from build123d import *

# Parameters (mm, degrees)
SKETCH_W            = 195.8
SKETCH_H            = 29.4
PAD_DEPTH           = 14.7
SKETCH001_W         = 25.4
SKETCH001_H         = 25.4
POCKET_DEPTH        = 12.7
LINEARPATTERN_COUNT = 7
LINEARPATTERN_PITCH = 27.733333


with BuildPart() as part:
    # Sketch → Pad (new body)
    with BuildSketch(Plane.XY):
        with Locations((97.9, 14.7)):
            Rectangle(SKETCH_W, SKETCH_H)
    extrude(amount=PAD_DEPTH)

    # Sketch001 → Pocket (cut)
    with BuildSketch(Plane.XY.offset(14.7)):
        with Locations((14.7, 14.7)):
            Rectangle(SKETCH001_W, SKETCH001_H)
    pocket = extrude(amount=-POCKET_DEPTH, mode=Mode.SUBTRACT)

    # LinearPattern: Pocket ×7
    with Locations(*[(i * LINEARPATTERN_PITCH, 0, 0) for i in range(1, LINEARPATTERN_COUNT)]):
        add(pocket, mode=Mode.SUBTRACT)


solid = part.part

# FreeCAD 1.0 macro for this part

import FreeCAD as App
import Part
import Sketcher

V = App.Vector
Q = App.Units.Quantity


def add_polygon(sketch, points):
    """Adds a closed chain of lines whose ends are joined by coincident constraints."""
    first, n = sketch.GeometryCount, len(points)
    for a, b in zip(points, points[1:] + points[:1]):
        sketch.addGeometry(Part.LineSegment(App.Vector(*a, 0), App.Vector(*b, 0)), False)
    for i in range(n):
        sketch.addConstraint(Sketcher.Constraint("Coincident", first + i, 2, first + (i + 1) % n, 1))

doc = App.newDocument("Part")
params = doc.addObject("Spreadsheet::Sheet", "Params")
for row, (alias, value) in enumerate([
    ("sketch1_width", "195.8 mm"),
    ("sketch1_height", "29.4 mm"),
    ("pad1_length", "14.7 mm"),
    ("sketch2_width", "25.4 mm"),
    ("pocket1_length", "12.7 mm"),
    ("linearpattern_pitch", "27.733333 mm"),
], start=1):
    params.set(f"A{row}", alias)
    params.set(f"B{row}", "=" + value)
    params.setAlias(f"B{row}", alias)

body = doc.addObject("PartDesign::Body", "Body")

sketch1 = body.newObject("Sketcher::SketchObject", "Sketch")
sketch1.AttachmentSupport = (doc.getObject("XY_Plane"), [""])
sketch1.MapMode = "FlatFace"
add_polygon(sketch1, [(0, 29), (0, 0), (196, 0), (196, 29)])
sketch1.addConstraint([
    Sketcher.Constraint("Vertical", 0),
    Sketcher.Constraint("Horizontal", 1),
    Sketcher.Constraint("Vertical", 2),
    Sketcher.Constraint("Horizontal", 3),
    Sketcher.Constraint("Coincident", 0, 2, -1, 1),
    Sketcher.Constraint("DistanceX", 1, 1, 1, 2, Q("195.8 mm")),
    Sketcher.Constraint("DistanceY", 0, 2, 0, 1, Q("29.4 mm")),
])
sketch1.setExpression("Constraints[9]", "Params.sketch1_width")
sketch1.setExpression("Constraints[10]", "Params.sketch1_height")
pad1 = body.newObject("PartDesign::Pad", "Pad")
pad1.Profile = sketch1
pad1.setExpression("Length", "Params.pad1_length")

sketch2 = body.newObject("Sketcher::SketchObject", "Sketch001")
sketch2.AttachmentSupport = (doc.getObject("XY_Plane"), [""])
sketch2.MapMode = "FlatFace"
sketch2.AttachmentOffset = App.Placement(V(0, 0, 14.7), App.Rotation())
add_polygon(sketch2, [(2, 27), (2, 2), (27, 2), (27, 27)])
sketch2.addConstraint([
    Sketcher.Constraint("Vertical", 0),
    Sketcher.Constraint("Horizontal", 1),
    Sketcher.Constraint("Vertical", 2),
    Sketcher.Constraint("Horizontal", 3),
    Sketcher.Constraint("Equal", 3, 0),
    Sketcher.Constraint("DistanceX", 1, 1, 1, 2, Q("25.4 mm")),
    Sketcher.Constraint("DistanceX", -1, 1, 0, 2, Q("2 mm")),
    Sketcher.Constraint("DistanceY", -1, 1, 0, 2, Q("2 mm")),
])
sketch2.setExpression("Constraints[9]", "Params.sketch2_width")
pocket1 = body.newObject("PartDesign::Pocket", "Pocket")
pocket1.Profile = sketch2
pocket1.setExpression("Length", "Params.pocket1_length")
doc.recompute()

linearpattern = body.newObject("PartDesign::LinearPattern", "LinearPattern")
linearpattern.Originals = [pocket1]
linearpattern.Direction = (doc.getObject("X_Axis"), [""])
linearpattern.Mode = "offset"
linearpattern.setExpression("Offset", "Params.linearpattern_pitch")
linearpattern.Occurrences = 7
body.Tip = linearpattern

doc.recompute()
